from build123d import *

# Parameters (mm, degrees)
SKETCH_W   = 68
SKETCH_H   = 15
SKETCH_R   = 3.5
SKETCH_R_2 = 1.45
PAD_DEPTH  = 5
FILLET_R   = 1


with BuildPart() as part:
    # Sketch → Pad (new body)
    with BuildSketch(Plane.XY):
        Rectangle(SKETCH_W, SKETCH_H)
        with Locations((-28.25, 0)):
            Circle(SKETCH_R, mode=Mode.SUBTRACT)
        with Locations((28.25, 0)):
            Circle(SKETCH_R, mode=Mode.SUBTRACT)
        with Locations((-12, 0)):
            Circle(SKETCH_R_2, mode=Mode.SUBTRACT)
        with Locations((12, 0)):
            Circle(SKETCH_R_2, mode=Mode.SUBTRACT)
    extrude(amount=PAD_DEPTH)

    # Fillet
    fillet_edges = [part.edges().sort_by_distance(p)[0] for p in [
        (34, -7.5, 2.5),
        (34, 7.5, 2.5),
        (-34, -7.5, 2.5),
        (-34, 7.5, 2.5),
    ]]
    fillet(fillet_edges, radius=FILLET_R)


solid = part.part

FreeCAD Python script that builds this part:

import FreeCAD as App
import Part
import Sketcher
from FreeCAD import Vector


def edges_at(feature, points):
    """Names of the edges that pass closest to the given points."""
    edges = feature.Shape.Edges
    near = lambda p: min(range(len(edges)), key=lambda i: edges[i].distToShape(Part.Vertex(*p))[0])
    return sorted({f"Edge{near(p) + 1}" for p in points})


def add_polygon(sketch, points):
    """Adds a closed chain of lines whose ends are joined by coincident constraints."""
    first, n = sketch.GeometryCount, len(points)
    for a, b in zip(points, points[1:] + points[:1]):
        sketch.addGeometry(Part.LineSegment(App.Vector(*a, 0), App.Vector(*b, 0)), False)
    for i in range(n):
        sketch.addConstraint(Sketcher.Constraint("Coincident", first + i, 2, first + (i + 1) % n, 1))

doc = App.newDocument("Part")
body = doc.addObject("PartDesign::Body", "Body")

# Sketch on XY plane
sketch1 = body.newObject("Sketcher::SketchObject", "Sketch")
sketch1.AttachmentSupport = (doc.getObject("XY_Plane"), [""])
sketch1.MapMode = "FlatFace"
add_polygon(sketch1, [(-34, 7.5), (-34, -7.5), (34, -7.5), (34, 7.5)])  # lines 0-3
sketch1.addGeometry(Part.Circle(Vector(-28.25, 0, 0), Vector(0, 0, 1), 3.5), False)  # 4
sketch1.addGeometry(Part.Circle(Vector(-12, 0, 0), Vector(0, 0, 1), 1.45), False)  # 5
sketch1.addGeometry(Part.Circle(Vector(12, 0, 0), Vector(0, 0, 1), 1.45), False)  # 6
sketch1.addGeometry(Part.Circle(Vector(28.25, 0, 0), Vector(0, 0, 1), 3.5), False)  # 7
sketch1.addConstraint([
    Sketcher.Constraint("Vertical", 0),
    Sketcher.Constraint("Horizontal", 1),
    Sketcher.Constraint("Vertical", 2),
    Sketcher.Constraint("Horizontal", 3),
    Sketcher.Constraint("Equal", 5, 6),
    Sketcher.Constraint("Equal", 4, 7),
    Sketcher.Constraint("Symmetric", 5, 3, 6, 3, -1, 1),
    Sketcher.Constraint("Symmetric", 4, 3, 7, 3, -1, 1),
    Sketcher.Constraint("Symmetric", 0, 2, 2, 2, -1, 1),
    Sketcher.Constraint("PointOnObject", 4, 3, -1),
    Sketcher.Constraint("PointOnObject", 5, 3, -1),
    Sketcher.Constraint("Diameter", 4, 7.0),
    Sketcher.Constraint("Diameter", 5, 2.9),
    Sketcher.Constraint("DistanceX", 1, 1, 1, 2, 68.0),
    Sketcher.Constraint("DistanceY", 0, 2, 0, 1, 15.0),
    Sketcher.Constraint("DistanceX", 5, 3, -1, 1, 12.0),
    Sketcher.Constraint("DistanceX", 4, 3, 7, 3, 56.5),
])
pad1 = body.newObject("PartDesign::Pad", "Pad")
pad1.Profile = sketch1
pad1.Length = 5
doc.recompute()

fillet = body.newObject("PartDesign::Fillet", "Fillet")
fillet.Base = (pad1, edges_at(pad1, [
    (34, -7.5, 2.5),
    (34, 7.5, 2.5),
    (-34, -7.5, 2.5),
    (-34, 7.5, 2.5),
]))
fillet.Radius = 1

doc.recompute()
